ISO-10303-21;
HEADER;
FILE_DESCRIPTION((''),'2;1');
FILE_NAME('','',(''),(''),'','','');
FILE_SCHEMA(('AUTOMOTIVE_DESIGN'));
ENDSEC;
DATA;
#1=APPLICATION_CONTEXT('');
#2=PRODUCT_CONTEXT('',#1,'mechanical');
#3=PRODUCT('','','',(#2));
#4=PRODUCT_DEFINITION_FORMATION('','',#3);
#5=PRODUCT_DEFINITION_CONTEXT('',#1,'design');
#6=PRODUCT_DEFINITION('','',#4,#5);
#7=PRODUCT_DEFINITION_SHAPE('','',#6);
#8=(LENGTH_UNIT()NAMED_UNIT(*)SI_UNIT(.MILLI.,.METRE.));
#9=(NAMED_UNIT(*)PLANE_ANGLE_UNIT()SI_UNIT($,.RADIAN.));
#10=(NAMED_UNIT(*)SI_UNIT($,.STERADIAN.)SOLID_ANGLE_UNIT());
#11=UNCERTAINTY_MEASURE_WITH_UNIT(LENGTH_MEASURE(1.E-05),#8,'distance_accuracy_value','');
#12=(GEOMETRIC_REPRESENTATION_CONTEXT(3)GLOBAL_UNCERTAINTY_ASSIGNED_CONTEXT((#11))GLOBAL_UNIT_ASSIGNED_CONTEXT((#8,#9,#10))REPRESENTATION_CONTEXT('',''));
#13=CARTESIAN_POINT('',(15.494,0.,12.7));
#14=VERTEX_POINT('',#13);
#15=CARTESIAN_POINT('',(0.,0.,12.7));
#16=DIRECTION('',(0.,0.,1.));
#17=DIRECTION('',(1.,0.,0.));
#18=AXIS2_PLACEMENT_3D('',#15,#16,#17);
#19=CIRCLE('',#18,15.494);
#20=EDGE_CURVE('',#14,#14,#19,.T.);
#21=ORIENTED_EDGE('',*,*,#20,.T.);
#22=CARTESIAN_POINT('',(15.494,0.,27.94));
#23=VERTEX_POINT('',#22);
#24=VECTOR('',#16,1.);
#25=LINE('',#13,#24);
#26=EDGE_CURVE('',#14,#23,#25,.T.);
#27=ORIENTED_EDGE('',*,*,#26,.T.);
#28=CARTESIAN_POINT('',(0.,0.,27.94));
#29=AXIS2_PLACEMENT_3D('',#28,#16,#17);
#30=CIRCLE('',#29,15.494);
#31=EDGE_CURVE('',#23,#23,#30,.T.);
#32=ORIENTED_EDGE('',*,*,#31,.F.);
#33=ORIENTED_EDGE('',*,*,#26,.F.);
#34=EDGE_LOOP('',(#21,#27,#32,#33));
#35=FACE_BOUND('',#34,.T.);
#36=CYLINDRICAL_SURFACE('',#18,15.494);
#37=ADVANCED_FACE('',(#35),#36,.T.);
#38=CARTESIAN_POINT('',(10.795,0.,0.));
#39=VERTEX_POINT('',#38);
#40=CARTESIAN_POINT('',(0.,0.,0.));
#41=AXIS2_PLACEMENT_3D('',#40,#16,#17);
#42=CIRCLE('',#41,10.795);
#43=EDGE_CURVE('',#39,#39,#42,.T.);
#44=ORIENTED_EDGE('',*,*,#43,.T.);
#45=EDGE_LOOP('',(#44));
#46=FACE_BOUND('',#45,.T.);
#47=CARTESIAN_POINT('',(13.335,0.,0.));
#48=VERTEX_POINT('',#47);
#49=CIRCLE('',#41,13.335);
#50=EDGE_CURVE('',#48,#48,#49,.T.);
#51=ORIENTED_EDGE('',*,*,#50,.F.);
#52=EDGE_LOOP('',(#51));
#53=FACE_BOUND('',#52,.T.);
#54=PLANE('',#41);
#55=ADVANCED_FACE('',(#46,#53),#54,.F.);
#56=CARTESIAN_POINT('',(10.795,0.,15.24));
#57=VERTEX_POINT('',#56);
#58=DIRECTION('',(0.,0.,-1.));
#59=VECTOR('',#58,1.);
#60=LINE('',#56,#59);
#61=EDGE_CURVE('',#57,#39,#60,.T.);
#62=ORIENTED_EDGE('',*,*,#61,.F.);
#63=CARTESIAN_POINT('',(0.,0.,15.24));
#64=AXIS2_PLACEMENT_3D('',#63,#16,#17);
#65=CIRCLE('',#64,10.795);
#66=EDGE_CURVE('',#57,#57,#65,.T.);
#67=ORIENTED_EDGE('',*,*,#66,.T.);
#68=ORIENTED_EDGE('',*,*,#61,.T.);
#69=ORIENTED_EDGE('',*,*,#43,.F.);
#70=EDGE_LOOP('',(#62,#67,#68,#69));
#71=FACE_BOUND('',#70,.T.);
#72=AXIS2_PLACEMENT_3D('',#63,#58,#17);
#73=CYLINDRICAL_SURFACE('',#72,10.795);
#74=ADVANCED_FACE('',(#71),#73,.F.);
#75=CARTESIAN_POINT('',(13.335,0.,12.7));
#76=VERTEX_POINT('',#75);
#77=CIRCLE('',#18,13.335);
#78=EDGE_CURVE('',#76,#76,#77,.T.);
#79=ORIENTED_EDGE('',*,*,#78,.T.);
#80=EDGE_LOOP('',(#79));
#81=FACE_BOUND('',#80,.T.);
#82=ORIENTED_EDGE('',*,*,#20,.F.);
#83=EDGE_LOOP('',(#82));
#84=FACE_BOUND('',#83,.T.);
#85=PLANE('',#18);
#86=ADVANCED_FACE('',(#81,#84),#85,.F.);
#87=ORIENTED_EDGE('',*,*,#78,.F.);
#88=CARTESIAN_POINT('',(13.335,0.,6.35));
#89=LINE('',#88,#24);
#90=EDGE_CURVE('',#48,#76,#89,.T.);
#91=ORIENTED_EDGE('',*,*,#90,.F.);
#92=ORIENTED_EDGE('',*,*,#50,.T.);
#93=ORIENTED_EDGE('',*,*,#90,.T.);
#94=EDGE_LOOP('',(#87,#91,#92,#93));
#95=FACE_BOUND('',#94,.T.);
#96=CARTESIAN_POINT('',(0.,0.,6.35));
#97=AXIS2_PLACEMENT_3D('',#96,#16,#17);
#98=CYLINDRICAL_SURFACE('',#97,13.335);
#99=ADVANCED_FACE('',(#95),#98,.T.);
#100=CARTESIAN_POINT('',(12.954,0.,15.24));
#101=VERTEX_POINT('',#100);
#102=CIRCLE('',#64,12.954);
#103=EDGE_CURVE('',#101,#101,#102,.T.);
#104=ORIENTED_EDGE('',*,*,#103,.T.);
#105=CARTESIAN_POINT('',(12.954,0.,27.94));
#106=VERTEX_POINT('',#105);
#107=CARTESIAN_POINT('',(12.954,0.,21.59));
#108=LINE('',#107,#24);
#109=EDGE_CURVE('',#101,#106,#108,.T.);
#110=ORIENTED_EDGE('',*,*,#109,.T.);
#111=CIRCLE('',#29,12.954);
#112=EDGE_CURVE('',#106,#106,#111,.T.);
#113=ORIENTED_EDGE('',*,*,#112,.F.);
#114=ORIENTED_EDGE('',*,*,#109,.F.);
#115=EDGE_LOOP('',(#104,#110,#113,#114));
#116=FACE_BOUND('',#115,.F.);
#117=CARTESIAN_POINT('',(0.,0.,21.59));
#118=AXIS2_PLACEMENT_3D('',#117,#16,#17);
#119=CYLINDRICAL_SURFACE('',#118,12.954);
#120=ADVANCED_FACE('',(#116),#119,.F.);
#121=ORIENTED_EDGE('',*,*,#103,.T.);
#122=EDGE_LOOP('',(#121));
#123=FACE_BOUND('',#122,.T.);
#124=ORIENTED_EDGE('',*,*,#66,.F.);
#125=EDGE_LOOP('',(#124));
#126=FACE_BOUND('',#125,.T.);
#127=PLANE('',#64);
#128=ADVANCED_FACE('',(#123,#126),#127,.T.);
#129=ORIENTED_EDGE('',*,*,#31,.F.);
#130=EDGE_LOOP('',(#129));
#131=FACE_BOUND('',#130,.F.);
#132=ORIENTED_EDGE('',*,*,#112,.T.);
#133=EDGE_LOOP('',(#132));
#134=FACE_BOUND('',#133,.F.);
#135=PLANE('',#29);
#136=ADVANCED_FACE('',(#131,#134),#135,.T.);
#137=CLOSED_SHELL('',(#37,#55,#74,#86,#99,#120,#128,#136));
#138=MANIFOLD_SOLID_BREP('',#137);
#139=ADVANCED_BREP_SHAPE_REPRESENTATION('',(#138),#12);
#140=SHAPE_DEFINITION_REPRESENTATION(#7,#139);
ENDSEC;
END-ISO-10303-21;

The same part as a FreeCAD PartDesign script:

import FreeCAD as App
import Part
import Sketcher
from FreeCAD import Vector
Q = App.Units.Quantity


def add_polygon(sketch, points):
    """Adds a closed chain of lines whose ends are joined by coincident constraints."""
    first, n = sketch.GeometryCount, len(points)
    for a, b in zip(points, points[1:] + points[:1]):
        sketch.addGeometry(Part.LineSegment(App.Vector(*a, 0), App.Vector(*b, 0)), False)
    for i in range(n):
        sketch.addConstraint(Sketcher.Constraint("Coincident", first + i, 2, first + (i + 1) % n, 1))

doc = App.newDocument("Part")
body = doc.addObject("PartDesign::Body", "Body")

sketch1 = body.newObject("Sketcher::SketchObject", "Sketch")
sketch1.AttachmentSupport = (doc.getObject("XZ_Plane"), [""])
sketch1.MapMode = "FlatFace"
add_polygon(sketch1, [(13, 27.9), (13, 15.2), (10.8, 15.2), (10.8, 0), (13.3, 0), (13.3, 12.7), (15.5, 12.7), (15.5, 27.9)])
sketch1.addConstraint([
    Sketcher.Constraint("Vertical", 0),
    Sketcher.Constraint("Horizontal", 1),
    Sketcher.Constraint("Vertical", 2),
    Sketcher.Constraint("Horizontal", 3),
    Sketcher.Constraint("Vertical", 4),
    Sketcher.Constraint("Horizontal", 5),
    Sketcher.Constraint("Vertical", 6),
    Sketcher.Constraint("Horizontal", 7),
    Sketcher.Constraint("PointOnObject", 2, 2, -1),
    Sketcher.Constraint("Equal", 1, 5),
    Sketcher.Constraint("Equal", 0, 4),
    Sketcher.Constraint("DistanceX", 3, 1, 3, 2, Q("0.1 in")),
    Sketcher.Constraint("DistanceY", 0, 2, 0, 1, Q("0.5 in")),
    Sketcher.Constraint("DistanceY", 2, 2, 2, 1, Q("0.6 in")),
    Sketcher.Constraint("DistanceX", 1, 2, 1, 1, Q("0.085 in")),
    Sketcher.Constraint("DistanceX", -1, 1, 0, 2, Q("0.51 in")),
])
revolution = body.newObject("PartDesign::Revolution", "Revolution")
revolution.Profile = sketch1
revolution.ReferenceAxis = (sketch1, ["V_Axis"])
revolution.Angle = 360

doc.recompute()
